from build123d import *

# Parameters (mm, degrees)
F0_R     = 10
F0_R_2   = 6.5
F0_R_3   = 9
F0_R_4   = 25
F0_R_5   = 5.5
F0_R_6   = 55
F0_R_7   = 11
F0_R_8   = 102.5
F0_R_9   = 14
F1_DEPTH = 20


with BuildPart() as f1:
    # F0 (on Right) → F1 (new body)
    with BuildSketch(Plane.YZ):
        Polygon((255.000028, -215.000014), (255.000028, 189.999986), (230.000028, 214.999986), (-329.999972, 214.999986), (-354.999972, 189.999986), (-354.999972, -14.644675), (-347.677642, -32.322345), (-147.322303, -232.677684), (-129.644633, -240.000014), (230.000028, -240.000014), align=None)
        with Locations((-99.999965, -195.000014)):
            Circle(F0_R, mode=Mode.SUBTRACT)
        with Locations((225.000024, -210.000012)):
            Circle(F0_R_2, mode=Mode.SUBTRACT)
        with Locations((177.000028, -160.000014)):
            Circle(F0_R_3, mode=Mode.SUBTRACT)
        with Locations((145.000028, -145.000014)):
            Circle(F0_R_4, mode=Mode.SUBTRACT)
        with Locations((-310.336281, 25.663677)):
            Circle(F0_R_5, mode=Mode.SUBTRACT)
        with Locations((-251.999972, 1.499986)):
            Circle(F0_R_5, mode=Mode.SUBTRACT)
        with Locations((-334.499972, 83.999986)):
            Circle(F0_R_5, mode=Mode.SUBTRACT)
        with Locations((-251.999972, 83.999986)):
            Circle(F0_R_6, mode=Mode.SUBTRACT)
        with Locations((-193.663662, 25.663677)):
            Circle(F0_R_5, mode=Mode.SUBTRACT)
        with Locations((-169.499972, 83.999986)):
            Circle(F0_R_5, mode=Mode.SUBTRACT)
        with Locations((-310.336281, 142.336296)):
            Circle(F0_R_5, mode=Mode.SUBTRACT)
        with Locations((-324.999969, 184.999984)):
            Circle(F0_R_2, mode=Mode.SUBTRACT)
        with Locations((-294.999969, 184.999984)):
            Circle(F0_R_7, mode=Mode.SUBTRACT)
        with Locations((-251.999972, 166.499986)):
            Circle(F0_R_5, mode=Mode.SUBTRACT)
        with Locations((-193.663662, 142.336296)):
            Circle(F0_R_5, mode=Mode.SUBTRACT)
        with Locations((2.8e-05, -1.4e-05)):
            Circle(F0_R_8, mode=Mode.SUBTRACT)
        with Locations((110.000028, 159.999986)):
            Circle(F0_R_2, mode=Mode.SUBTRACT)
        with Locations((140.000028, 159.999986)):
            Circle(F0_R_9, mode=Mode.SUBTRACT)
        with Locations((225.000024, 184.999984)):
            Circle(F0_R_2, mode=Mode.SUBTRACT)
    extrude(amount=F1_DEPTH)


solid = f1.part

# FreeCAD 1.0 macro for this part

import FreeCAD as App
import Part
import Sketcher
from FreeCAD import Vector
Q = App.Units.Quantity


def add_polygon(sketch, points):
    """Adds a closed chain of lines whose ends are joined by coincident constraints."""
    first, n = sketch.GeometryCount, len(points)
    for a, b in zip(points, points[1:] + points[:1]):
        sketch.addGeometry(Part.LineSegment(App.Vector(*a, 0), App.Vector(*b, 0)), False)
    for i in range(n):
        sketch.addConstraint(Sketcher.Constraint("Coincident", first + i, 2, first + (i + 1) % n, 1))

doc = App.newDocument("Part")
params = doc.addObject("Spreadsheet::Sheet", "Params")
for row, (alias, value) in enumerate([
    ("sketch1_diameter", "20 mm"),
    ("sketch1_diameter2", "13 mm"),
    ("sketch1_diameter3", "50 mm"),
    ("sketch1_diameter4", "18 mm"),
    ("sketch1_diameter5", "11 mm"),
    ("pad1_length", "20 mm"),
], start=1):
    params.set(f"A{row}", alias)
    params.set(f"B{row}", "=" + value)
    params.setAlias(f"B{row}", alias)

body = doc.addObject("PartDesign::Body", "Body")

# Sketch on YZ plane
sketch1 = body.newObject("Sketcher::SketchObject", "Sketch")
sketch1.AttachmentSupport = (doc.getObject("YZ_Plane"), [""])
sketch1.MapMode = "FlatFace"
add_polygon(sketch1, [(255.000028, -215.000014), (255.000028, 189.999986), (230.000028, 214.999986), (-329.999972, 214.999986), (-354.999972, 189.999986), (-354.999972, -14.644675), (-347.677642, -32.322345), (-147.322303, -232.677684), (-129.644633, -240.000014), (230.000028, -240.000014)])  # lines 0-9
sketch1.addGeometry(Part.Circle(Vector(-99.999965, -195.000014, 0), Vector(0, 0, 1), 10), False)  # 10
sketch1.addGeometry(Part.Circle(Vector(225.000024, -210.000012, 0), Vector(0, 0, 1), 6.5), False)  # 11
sketch1.addGeometry(Part.Circle(Vector(145.000028, -145.000014, 0), Vector(0, 0, 1), 25), False)  # 12
sketch1.addGeometry(Part.Circle(Vector(177.000028, -160.000014, 0), Vector(0, 0, 1), 9), False)  # 13
sketch1.addGeometry(Part.Circle(Vector(-310.336281, 25.663677, 0), Vector(0, 0, 1), 5.5), False)  # 14
sketch1.addGeometry(Part.Circle(Vector(-251.999972, 1.499986, 0), Vector(0, 0, 1), 5.5), False)  # 15
sketch1.addGeometry(Part.Circle(Vector(-334.499972, 83.999986, 0), Vector(0, 0, 1), 5.5), False)  # 16
sketch1.addGeometry(Part.Circle(Vector(-251.999972, 83.999986, 0), Vector(0, 0, 1), 55), False)  # 17
sketch1.addGeometry(Part.Circle(Vector(-193.663662, 25.663677, 0), Vector(0, 0, 1), 5.5), False)  # 18
sketch1.addGeometry(Part.Circle(Vector(-169.499972, 83.999986, 0), Vector(0, 0, 1), 5.5), False)  # 19
sketch1.addGeometry(Part.Circle(Vector(-310.336281, 142.336296, 0), Vector(0, 0, 1), 5.5), False)  # 20
sketch1.addGeometry(Part.Circle(Vector(-324.999969, 184.999984, 0), Vector(0, 0, 1), 6.5), False)  # 21
sketch1.addGeometry(Part.Circle(Vector(-294.999969, 184.999984, 0), Vector(0, 0, 1), 11), False)  # 22
sketch1.addGeometry(Part.Circle(Vector(-251.999972, 166.499986, 0), Vector(0, 0, 1), 5.5), False)  # 23
sketch1.addGeometry(Part.Circle(Vector(-193.663662, 142.336296, 0), Vector(0, 0, 1), 5.5), False)  # 24
sketch1.addGeometry(Part.Circle(Vector(0.000028, -0.000014, 0), Vector(0, 0, 1), 102.5), False)  # 25
sketch1.addGeometry(Part.Circle(Vector(110.000028, 159.999986, 0), Vector(0, 0, 1), 6.5), False)  # 26
sketch1.addGeometry(Part.Circle(Vector(140.000028, 159.999986, 0), Vector(0, 0, 1), 14), False)  # 27
sketch1.addGeometry(Part.Circle(Vector(225.000024, 184.999984, 0), Vector(0, 0, 1), 6.5), False)  # 28
sketch1.addConstraint([
    Sketcher.Constraint("Vertical", 0),
    Sketcher.Constraint("Horizontal", 2),
    Sketcher.Constraint("Vertical", 4),
    Sketcher.Constraint("Horizontal", 8),
    Sketcher.Constraint("Equal", 14, 15),
    Sketcher.Constraint("Equal", 15, 16),
    Sketcher.Constraint("Equal", 16, 18),
    Sketcher.Constraint("Equal", 18, 19),
    Sketcher.Constraint("Equal", 19, 20),
    Sketcher.Constraint("Equal", 11, 21),
    Sketcher.Constraint("Equal", 20, 23),
    Sketcher.Constraint("Equal", 23, 24),
    Sketcher.Constraint("Equal", 21, 26),
    Sketcher.Constraint("Equal", 26, 28),
    Sketcher.Constraint("Perpendicular", 1, 3),
    Sketcher.Constraint("Perpendicular", 3, 6),
    Sketcher.Constraint("Perpendicular", 6, 9),
    Sketcher.Constraint("Horizontal", 16, 3, 17, 3),
    Sketcher.Constraint("Horizontal", 14, 3, 18, 3),
    Sketcher.Constraint("Horizontal", 17, 3, 19, 3),
    Sketcher.Constraint("Horizontal", 21, 3, 22, 3),
    Sketcher.Constraint("Horizontal", 20, 3, 24, 3),
    Sketcher.Constraint("Horizontal", 26, 3, 27, 3),
    Sketcher.Constraint("Horizontal", 22, 3, 28, 3),
    Sketcher.Constraint("Horizontal", 0, 2, 3, 2),
    Sketcher.Constraint("Vertical", 15, 3, 17, 3),
    Sketcher.Constraint("Vertical", 14, 3, 20, 3),
    Sketcher.Constraint("Vertical", 17, 3, 23, 3),
    Sketcher.Constraint("Vertical", 18, 3, 24, 3),
    Sketcher.Constraint("Vertical", 11, 3, 28, 3),
    Sketcher.Constraint("Vertical", 1, 2, 8, 2),
    Sketcher.Constraint("Equal", 1, 3),
    Sketcher.Constraint("Equal", 5, 7),
    Sketcher.Constraint("Diameter", 10, 20.0),
    Sketcher.Constraint("Diameter", 11, 13.0),
    Sketcher.Constraint("Diameter", 12, 50.0),
    Sketcher.Constraint("Diameter", 13, 18.0),
    Sketcher.Constraint("Diameter", 14, 11.0),
    Sketcher.Constraint("Diameter", 17, 110.0),
    Sketcher.Constraint("Diameter", 22, 22.0),
    Sketcher.Constraint("Diameter", 25, 205.0),
    Sketcher.Constraint("Diameter", 27, 28.0),
    Sketcher.Constraint("DistanceX", 2, 2, 2, 1, 560.0),
    Sketcher.Constraint("DistanceY", 0, 1, 0, 2, 405.0),
    Sketcher.Constraint("Angle", 5, Q("-67.500002 deg")),
    Sketcher.Constraint("Angle", 7, Q("-22.499998 deg")),
    Sketcher.Constraint("DistanceY", 11, 3, 10, 3, 14.999998),
    Sketcher.Constraint("DistanceY", 11, 3, 12, 3, 64.999998),
    Sketcher.Constraint("DistanceX", 12, 3, 13, 3, 32.0),
    Sketcher.Constraint("DistanceY", 13, 3, 12, 3, 15.0),
    Sketcher.Constraint("DistanceX", 15, 3, 12, 3, 397.0),
    Sketcher.Constraint("DistanceY", 10, 3, 16, 3, 279.0),
    Sketcher.Constraint("DistanceX", 16, 3, 19, 3, 165.0),
    Sketcher.Constraint("DistanceY", 16, 3, 21, 3, 100.999998),
    Sketcher.Constraint("DistanceX", 21, 3, 22, 3, 30.0),
    Sketcher.Constraint("DistanceY", 25, 3, 19, 3, 84.0),
    Sketcher.Constraint("DistanceX", 25, 3, 12, 3, 145.0),
    Sketcher.Constraint("DistanceX", 25, 3, 26, 3, 110.0),
    Sketcher.Constraint("DistanceY", 25, 3, 26, 3, 160.0),
    Sketcher.Constraint("DistanceX", 26, 3, 27, 3, 30.0),
    Sketcher.Constraint("DistanceY", 28, 3, 0, 2, 5.000002),
    Sketcher.Constraint("DistanceX", 27, 3, 0, 2, 115.0),
    Sketcher.Constraint("DistanceY", 28, 3, 1, 2, 30.000002),
    Sketcher.Constraint("DistanceY", 10, 3, 15, 3, 196.5),
    Sketcher.Constraint("DistanceX", 16, 3, 15, 3, 82.5),
    Sketcher.Constraint("DistanceY", 23, 3, 22, 3, 18.499998),
    Sketcher.Constraint("DistanceX", 8, 1, 8, 2, 359.644661),
    Sketcher.Constraint("Distance", 5, 19.134172),
    Sketcher.Constraint("DistanceY", 11, 3, -1, 1, 210.000012),
    Sketcher.Constraint("DistanceX", 14, 3, -1, 1, 310.336281),
    Sketcher.Constraint("DistanceX", 16, 3, -1, 1, 334.499972),
    Sketcher.Constraint("DistanceX", 18, 3, -1, 1, 193.663662),
    Sketcher.Constraint("DistanceX", 21, 3, -1, 1, 324.999969),
    Sketcher.Constraint("DistanceX", 10, 3, 11, 3, 324.999989),
    Sketcher.Constraint("DistanceY", 10, 3, 14, 3, 220.663691),
    Sketcher.Constraint("DistanceY", 16, 3, 20, 3, 58.33631),
    Sketcher.Constraint("DistanceX", 6, 2, 10, 3, 47.322338),
])
sketch1.setExpression("Constraints[43]", "Params.sketch1_diameter")
sketch1.setExpression("Constraints[44]", "Params.sketch1_diameter2")
sketch1.setExpression("Constraints[45]", "Params.sketch1_diameter3")
sketch1.setExpression("Constraints[46]", "Params.sketch1_diameter4")
sketch1.setExpression("Constraints[47]", "Params.sketch1_diameter5")
pad1 = body.newObject("PartDesign::Pad", "Pad")
pad1.Profile = sketch1
pad1.setExpression("Length", "Params.pad1_length")

doc.recompute()
